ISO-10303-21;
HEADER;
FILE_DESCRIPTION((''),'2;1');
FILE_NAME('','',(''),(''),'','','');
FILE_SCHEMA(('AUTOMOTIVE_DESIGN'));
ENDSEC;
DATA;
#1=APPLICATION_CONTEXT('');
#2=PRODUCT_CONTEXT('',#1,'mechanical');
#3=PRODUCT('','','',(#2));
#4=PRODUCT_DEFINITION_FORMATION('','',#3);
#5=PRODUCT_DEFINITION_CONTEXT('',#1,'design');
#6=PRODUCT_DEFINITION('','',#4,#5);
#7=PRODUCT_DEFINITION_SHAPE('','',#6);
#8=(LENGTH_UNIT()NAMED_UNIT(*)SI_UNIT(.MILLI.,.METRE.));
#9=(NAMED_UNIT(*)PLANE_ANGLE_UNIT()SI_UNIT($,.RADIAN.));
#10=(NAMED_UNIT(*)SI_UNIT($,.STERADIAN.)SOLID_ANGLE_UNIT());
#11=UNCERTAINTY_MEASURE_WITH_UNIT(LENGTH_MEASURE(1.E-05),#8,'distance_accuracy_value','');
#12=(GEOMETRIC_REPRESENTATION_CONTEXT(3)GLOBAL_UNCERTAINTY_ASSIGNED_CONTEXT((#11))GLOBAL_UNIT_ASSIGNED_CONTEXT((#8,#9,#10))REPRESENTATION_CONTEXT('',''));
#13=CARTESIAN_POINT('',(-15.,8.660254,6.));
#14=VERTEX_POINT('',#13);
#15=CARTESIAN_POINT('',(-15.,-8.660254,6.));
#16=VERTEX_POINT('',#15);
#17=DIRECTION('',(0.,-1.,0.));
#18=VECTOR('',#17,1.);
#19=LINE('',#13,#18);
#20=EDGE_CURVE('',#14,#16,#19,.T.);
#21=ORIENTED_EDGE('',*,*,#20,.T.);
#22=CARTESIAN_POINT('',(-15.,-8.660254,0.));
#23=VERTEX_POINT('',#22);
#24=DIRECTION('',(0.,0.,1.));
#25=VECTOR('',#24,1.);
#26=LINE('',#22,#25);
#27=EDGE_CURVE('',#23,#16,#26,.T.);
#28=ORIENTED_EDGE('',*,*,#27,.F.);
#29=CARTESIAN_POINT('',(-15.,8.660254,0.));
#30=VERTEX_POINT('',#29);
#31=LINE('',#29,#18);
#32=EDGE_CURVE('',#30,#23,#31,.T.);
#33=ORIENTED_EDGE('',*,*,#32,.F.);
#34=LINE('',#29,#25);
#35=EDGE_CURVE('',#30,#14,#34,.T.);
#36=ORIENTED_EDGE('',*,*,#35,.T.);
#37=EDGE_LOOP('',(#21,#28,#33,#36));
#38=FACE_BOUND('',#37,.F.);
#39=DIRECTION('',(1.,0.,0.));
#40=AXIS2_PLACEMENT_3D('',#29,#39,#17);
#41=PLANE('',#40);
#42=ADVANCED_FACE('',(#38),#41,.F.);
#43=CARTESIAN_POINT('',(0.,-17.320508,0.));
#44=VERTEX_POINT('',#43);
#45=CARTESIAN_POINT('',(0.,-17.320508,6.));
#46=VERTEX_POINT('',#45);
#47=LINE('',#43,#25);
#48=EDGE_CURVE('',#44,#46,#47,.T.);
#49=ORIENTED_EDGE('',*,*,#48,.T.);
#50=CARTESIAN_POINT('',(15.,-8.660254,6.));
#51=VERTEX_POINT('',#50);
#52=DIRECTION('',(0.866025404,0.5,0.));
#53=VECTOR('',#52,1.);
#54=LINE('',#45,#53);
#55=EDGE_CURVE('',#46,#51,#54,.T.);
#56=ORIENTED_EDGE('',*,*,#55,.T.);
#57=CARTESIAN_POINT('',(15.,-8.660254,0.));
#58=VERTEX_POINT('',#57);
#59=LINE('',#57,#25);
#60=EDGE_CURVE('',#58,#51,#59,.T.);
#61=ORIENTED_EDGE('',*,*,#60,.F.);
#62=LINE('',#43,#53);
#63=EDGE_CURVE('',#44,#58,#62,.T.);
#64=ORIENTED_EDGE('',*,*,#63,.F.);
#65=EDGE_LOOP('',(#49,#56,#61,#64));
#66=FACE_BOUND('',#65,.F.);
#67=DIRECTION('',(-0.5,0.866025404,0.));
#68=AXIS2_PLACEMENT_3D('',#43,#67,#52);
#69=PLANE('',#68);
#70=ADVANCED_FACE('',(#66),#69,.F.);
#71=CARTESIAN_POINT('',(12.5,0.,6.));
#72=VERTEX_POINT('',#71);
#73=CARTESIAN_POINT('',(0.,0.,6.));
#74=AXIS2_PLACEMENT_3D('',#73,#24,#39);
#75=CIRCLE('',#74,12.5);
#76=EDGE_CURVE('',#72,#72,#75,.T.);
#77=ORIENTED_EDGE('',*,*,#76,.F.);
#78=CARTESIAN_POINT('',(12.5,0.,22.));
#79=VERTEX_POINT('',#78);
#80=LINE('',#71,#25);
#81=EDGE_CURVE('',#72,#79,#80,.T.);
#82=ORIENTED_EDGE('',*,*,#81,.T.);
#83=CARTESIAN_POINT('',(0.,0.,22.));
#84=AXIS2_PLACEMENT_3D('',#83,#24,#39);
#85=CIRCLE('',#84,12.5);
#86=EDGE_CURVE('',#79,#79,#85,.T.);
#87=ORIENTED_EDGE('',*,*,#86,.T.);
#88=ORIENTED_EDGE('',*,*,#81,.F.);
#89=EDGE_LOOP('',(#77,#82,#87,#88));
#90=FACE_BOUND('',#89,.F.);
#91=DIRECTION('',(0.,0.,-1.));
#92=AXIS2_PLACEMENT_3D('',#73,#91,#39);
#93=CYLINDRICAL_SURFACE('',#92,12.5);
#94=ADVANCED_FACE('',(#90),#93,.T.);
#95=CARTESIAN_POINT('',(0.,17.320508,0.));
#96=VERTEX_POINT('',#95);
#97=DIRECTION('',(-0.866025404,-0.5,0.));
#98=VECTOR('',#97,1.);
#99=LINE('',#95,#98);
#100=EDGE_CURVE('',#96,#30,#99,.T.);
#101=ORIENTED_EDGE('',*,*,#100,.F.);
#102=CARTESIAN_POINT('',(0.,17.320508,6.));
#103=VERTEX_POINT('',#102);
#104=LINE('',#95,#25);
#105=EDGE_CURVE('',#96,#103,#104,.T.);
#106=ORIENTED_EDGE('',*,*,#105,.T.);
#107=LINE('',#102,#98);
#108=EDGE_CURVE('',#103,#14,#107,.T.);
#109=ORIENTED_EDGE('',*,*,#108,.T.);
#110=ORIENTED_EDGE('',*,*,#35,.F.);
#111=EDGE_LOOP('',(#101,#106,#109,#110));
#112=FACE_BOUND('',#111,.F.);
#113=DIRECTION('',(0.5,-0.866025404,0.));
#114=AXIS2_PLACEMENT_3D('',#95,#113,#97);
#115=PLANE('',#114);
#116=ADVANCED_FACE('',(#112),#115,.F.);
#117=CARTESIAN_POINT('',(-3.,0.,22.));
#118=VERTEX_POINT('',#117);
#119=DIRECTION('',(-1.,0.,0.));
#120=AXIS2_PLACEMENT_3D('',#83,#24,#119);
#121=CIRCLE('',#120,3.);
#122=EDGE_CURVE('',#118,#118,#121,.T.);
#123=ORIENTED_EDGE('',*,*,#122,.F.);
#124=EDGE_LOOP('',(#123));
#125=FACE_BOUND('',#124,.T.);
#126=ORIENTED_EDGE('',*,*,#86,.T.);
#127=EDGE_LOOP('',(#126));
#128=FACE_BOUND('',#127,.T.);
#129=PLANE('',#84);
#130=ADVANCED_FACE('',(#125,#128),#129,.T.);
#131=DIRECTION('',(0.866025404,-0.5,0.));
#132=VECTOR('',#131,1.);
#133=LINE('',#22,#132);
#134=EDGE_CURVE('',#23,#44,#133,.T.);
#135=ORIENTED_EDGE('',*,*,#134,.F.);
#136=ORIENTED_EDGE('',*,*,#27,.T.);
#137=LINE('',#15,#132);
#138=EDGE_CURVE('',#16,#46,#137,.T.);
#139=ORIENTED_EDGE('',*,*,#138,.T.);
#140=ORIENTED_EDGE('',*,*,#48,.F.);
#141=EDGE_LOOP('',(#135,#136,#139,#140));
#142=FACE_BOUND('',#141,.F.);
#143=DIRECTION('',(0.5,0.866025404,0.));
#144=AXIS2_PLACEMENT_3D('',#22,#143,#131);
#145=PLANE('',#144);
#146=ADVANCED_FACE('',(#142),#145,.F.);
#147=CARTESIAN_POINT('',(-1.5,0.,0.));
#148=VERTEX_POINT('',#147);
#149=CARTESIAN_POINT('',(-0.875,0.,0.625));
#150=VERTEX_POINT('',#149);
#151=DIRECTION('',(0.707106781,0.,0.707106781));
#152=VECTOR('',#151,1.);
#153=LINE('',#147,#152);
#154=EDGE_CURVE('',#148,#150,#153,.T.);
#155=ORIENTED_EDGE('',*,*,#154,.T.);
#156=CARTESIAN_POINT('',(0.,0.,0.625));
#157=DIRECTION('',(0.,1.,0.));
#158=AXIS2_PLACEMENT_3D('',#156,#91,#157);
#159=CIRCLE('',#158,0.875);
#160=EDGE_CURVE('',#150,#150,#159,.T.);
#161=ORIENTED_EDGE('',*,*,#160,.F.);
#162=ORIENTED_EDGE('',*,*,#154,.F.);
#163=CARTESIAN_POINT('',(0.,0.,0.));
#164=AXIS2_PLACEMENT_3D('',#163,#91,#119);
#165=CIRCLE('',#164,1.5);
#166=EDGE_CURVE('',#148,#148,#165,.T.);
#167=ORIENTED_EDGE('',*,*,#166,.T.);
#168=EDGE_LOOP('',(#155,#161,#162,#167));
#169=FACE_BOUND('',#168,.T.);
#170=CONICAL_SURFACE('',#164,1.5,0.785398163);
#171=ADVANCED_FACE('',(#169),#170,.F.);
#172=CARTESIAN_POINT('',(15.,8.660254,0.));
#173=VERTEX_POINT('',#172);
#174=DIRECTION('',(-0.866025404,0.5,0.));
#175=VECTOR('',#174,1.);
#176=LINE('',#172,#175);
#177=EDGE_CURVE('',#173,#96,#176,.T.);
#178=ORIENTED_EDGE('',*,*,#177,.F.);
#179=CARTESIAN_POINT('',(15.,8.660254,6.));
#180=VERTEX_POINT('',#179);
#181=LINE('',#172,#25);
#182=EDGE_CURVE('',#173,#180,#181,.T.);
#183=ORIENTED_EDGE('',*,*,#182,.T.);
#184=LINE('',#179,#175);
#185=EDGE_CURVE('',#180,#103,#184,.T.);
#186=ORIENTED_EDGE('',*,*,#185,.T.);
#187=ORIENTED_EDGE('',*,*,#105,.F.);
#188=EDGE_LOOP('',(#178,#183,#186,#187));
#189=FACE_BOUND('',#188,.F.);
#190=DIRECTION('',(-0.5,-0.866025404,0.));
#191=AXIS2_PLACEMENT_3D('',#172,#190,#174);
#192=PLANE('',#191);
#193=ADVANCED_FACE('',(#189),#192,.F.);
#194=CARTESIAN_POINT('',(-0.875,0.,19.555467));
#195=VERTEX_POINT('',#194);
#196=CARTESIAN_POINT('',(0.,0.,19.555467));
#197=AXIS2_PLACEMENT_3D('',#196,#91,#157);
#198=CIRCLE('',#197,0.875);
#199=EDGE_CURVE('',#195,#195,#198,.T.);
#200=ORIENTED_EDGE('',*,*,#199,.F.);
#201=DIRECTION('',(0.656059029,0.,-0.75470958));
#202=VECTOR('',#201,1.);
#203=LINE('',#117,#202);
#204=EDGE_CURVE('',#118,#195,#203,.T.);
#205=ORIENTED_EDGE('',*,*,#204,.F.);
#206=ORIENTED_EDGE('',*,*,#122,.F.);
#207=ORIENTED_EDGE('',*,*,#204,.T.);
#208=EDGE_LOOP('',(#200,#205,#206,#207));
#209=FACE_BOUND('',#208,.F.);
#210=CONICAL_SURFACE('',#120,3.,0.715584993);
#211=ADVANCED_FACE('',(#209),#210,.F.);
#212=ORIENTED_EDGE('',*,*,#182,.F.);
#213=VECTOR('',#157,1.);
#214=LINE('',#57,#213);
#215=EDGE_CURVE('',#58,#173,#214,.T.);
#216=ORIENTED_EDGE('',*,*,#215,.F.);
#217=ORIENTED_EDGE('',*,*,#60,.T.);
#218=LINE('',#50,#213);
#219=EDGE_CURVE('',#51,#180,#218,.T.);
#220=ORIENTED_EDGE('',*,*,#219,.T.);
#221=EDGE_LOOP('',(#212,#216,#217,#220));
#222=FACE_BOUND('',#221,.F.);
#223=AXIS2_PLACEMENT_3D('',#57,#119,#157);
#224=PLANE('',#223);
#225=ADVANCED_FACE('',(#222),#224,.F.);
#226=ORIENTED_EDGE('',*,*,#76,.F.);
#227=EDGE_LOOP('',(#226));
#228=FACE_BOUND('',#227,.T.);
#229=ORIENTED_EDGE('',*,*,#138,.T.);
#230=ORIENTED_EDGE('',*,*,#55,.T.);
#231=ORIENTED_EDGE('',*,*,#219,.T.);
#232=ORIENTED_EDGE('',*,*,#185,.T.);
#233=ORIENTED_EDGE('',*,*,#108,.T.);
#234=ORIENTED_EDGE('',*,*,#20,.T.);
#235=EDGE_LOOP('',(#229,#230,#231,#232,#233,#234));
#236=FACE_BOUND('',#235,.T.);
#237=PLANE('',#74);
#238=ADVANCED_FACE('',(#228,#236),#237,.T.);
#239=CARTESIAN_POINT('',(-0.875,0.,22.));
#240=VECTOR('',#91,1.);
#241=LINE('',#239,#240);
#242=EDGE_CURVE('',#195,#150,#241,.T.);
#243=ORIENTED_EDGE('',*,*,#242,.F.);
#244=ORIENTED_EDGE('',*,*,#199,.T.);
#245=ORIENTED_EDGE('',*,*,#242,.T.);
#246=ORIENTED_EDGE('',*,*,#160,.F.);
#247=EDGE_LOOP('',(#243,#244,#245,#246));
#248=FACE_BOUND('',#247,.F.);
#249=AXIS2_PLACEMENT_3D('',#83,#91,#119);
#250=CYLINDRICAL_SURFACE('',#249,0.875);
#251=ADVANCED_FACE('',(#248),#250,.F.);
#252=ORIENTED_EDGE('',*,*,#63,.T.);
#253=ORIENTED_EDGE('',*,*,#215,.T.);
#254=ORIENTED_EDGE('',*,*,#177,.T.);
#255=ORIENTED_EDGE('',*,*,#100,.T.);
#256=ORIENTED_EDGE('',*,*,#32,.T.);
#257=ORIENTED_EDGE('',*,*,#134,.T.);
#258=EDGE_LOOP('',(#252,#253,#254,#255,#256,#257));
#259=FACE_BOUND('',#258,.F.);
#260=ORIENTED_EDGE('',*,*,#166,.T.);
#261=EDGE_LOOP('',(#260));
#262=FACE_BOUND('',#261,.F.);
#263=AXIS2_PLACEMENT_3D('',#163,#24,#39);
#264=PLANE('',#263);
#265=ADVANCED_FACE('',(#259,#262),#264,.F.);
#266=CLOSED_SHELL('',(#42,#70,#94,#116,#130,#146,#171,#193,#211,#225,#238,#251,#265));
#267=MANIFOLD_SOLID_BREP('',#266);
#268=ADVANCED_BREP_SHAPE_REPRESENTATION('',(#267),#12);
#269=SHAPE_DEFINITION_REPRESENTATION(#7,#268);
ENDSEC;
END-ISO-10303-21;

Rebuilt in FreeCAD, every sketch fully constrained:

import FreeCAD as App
import Part
import Sketcher

V = App.Vector
Q = App.Units.Quantity


def add_polygon(sketch, points):
    """Adds a closed chain of lines whose ends are joined by coincident constraints."""
    first, n = sketch.GeometryCount, len(points)
    for a, b in zip(points, points[1:] + points[:1]):
        sketch.addGeometry(Part.LineSegment(App.Vector(*a, 0), App.Vector(*b, 0)), False)
    for i in range(n):
        sketch.addConstraint(Sketcher.Constraint("Coincident", first + i, 2, first + (i + 1) % n, 1))

doc = App.newDocument("Part")
body = doc.addObject("PartDesign::Body", "Body")

# Sketch on XY plane
sketch1 = body.newObject("Sketcher::SketchObject", "Sketch")
sketch1.AttachmentSupport = (doc.getObject("XY_Plane"), [""])
sketch1.MapMode = "FlatFace"
add_polygon(sketch1, [(0, 17), (-15, 9), (-15, -9), (0, -17), (15, -9), (15, 9)])  # lines 0-5
sketch1.addConstraint(Sketcher.Constraint("Vertical", 1))
sketch1.addConstraint(Sketcher.Constraint("Vertical", 4))
sketch1.addConstraint(Sketcher.Constraint("Symmetric", 0, 2, 3, 2, -1, 1))
sketch1.addConstraint(Sketcher.Constraint("Symmetric", 2, 2, 5, 2, -1, 1))
sketch1.addConstraint(Sketcher.Constraint("PointOnObject", 2, 2, -2))
sketch1.addConstraint(Sketcher.Constraint("Parallel", 2, 5))
sketch1.addConstraint(Sketcher.Constraint("Horizontal", 1, 2, 3, 2))
sketch1.addConstraint(Sketcher.Constraint("Angle", 0, Q("-150 deg")))
sketch1.addConstraint(Sketcher.Constraint("DistanceX", 0, 2, -1, 1, 15.0))
sketch1.addConstraint(Sketcher.Constraint("DistanceY", 1, 2, 1, 1, 17.320508))
pad1 = body.newObject("PartDesign::Pad", "Pad")
pad1.Profile = sketch1
pad1.Length = 6

# Sketch on XY plane
sketch2 = body.newObject("Sketcher::SketchObject", "Sketch001")
sketch2.AttachmentSupport = (doc.getObject("XY_Plane"), [""])
sketch2.MapMode = "FlatFace"
sketch2.AttachmentOffset = App.Placement(V(0, 0, 6), App.Rotation())
sketch2.addGeometry(Part.Circle(V(0, 0, 0), V(0, 0, 1), 12), False)
sketch2.addConstraint(Sketcher.Constraint("Coincident", 0, 3, -1, 1))
sketch2.addConstraint(Sketcher.Constraint("Diameter", 0, 25.0))
pad2 = body.newObject("PartDesign::Pad", "Pad001")
pad2.Profile = sketch2
pad2.Length = 16

# Sketch on XY plane
sketch3 = body.newObject("Sketcher::SketchObject", "Sketch002")
sketch3.AttachmentSupport = (doc.getObject("XY_Plane"), [""])
sketch3.MapMode = "FlatFace"
sketch3.AttachmentOffset = App.Placement(V(0, 0, 22), App.Rotation())
sketch3.addGeometry(Part.Circle(V(0, 0, 0), V(0, 0, 1), 0.9), False)
sketch3.addConstraint(Sketcher.Constraint("Coincident", 0, 3, -1, 1))
sketch3.addConstraint(Sketcher.Constraint("Diameter", 0, 1.75))
doc.recompute()
hole = body.newObject("PartDesign::Hole", "Hole")
hole.Profile = sketch3
hole.ThreadType = "None"
hole.Diameter = 1.75
hole.DepthType = "ThroughAll"
hole.HoleCutType = "Countersink"
hole.HoleCutDiameter = 6
hole.HoleCutCountersinkAngle = 82

# Sketch on XZ plane
sketch4 = body.newObject("Sketcher::SketchObject", "Sketch003")
sketch4.AttachmentSupport = (doc.getObject("XZ_Plane"), [""])
sketch4.MapMode = "FlatFace"
add_polygon(sketch4, [(-1.5, 0), (0, 1.5), (0, 0)])  # lines 0-2
sketch4.addConstraint(Sketcher.Constraint("Vertical", 1))
sketch4.addConstraint(Sketcher.Constraint("Horizontal", 2))
sketch4.addConstraint(Sketcher.Constraint("Coincident", 1, 2, -1, 1))
sketch4.addConstraint(Sketcher.Constraint("Equal", 2, 1))
sketch4.addConstraint(Sketcher.Constraint("DistanceX", 2, 2, 2, 1, 1.5))
groove = body.newObject("PartDesign::Groove", "Groove")
groove.Profile = sketch4
groove.ReferenceAxis = (sketch4, ["V_Axis"])
groove.Angle = 360

doc.recompute()
